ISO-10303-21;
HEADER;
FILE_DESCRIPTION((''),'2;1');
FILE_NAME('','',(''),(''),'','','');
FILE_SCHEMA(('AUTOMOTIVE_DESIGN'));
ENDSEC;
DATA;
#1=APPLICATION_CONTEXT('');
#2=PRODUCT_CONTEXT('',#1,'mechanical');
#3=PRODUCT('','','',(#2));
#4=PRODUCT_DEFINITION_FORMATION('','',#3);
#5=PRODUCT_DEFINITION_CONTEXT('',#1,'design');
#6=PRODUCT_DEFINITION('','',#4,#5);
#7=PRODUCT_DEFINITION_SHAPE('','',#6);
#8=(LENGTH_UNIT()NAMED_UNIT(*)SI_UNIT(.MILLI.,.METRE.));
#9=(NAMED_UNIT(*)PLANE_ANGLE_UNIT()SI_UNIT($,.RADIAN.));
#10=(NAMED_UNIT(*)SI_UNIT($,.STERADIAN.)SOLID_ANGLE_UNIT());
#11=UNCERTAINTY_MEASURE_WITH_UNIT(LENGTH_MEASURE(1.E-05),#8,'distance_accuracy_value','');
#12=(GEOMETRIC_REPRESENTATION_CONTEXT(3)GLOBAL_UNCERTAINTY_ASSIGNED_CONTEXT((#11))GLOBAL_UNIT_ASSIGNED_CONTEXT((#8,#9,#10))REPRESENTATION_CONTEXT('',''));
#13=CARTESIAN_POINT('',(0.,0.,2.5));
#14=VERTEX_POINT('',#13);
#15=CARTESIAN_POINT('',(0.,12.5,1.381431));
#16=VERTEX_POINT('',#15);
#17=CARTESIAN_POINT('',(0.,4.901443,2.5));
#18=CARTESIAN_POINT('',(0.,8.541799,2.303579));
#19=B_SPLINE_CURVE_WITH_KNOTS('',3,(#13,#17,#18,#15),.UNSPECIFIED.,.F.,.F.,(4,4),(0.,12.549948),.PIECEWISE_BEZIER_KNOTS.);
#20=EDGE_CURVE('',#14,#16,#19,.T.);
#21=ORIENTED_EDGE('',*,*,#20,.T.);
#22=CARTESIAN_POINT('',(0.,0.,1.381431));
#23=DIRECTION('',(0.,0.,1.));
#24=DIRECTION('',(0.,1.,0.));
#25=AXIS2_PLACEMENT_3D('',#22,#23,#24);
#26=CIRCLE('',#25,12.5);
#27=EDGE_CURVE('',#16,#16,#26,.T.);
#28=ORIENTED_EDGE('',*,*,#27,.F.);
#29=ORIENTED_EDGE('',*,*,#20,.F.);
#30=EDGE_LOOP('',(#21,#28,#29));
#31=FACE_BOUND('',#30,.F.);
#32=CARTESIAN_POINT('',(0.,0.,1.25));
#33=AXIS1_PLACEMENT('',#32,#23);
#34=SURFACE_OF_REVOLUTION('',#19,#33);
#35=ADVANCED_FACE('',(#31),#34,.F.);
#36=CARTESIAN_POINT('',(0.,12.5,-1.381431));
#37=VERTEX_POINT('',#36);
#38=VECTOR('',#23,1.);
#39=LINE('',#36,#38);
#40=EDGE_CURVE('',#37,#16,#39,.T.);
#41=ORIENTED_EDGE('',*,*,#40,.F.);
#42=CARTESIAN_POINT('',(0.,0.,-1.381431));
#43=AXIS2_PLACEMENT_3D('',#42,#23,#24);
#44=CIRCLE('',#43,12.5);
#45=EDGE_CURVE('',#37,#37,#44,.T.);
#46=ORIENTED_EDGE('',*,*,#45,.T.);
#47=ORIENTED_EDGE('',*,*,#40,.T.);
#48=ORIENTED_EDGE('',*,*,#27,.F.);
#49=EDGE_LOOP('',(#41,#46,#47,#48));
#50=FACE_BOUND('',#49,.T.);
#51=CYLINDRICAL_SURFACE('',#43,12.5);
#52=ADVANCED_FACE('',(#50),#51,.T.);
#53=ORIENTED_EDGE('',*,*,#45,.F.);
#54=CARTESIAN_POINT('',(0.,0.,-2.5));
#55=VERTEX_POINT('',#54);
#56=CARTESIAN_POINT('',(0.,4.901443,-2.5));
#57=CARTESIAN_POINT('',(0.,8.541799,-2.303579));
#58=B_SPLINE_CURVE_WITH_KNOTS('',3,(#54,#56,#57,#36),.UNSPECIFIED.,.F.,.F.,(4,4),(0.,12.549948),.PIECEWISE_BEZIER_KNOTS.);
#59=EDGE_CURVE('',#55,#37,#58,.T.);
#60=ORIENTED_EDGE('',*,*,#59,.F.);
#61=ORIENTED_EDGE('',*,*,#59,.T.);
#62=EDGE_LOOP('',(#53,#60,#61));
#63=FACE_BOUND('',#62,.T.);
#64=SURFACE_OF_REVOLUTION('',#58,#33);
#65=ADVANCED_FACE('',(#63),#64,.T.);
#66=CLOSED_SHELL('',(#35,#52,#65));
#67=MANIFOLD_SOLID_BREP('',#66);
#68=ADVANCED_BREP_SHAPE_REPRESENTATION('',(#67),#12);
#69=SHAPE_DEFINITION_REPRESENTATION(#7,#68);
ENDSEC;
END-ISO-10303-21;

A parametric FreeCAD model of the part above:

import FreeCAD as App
import Part
import Sketcher

V = App.Vector

doc = App.newDocument("Part")
body = doc.addObject("PartDesign::Body", "Body")

sketch1 = body.newObject("Sketcher::SketchObject", "Sketch")
sketch1.AttachmentSupport = (doc.getObject("YZ_Plane"), [""])
sketch1.MapMode = "FlatFace"
sketch1.addGeometry(Part.LineSegment(V(0, 2.5, 0), V(0, -2.5, 0)), False)
sketch1.addGeometry(Part.BSplineCurve([V(0, -2.5, 0), V(4.901443, -2.5, 0), V(8.541799, -2.303579, 0), V(12.5, -1.381431, 0)], [4, 4], [0, 12.549948], False, 3, [1, 1, 1, 1], False), False)
sketch1.addGeometry(Part.LineSegment(V(12.5, -1.381431, 0), V(12.5, 1.381431, 0)), False)
sketch1.addGeometry(Part.BSplineCurve([V(0, 2.5, 0), V(4.901443, 2.5, 0), V(8.541799, 2.303579, 0), V(12.5, 1.381431, 0)], [4, 4], [0, 12.549948], False, 3, [1, 1, 1, 1], False), False)
sketch1.addConstraint(Sketcher.Constraint("Block", 1))
sketch1.addConstraint(Sketcher.Constraint("Block", 3))
sketch1.addConstraint(Sketcher.Constraint("Coincident", 0, 2, 1, 1))
sketch1.addConstraint(Sketcher.Constraint("Coincident", 1, 2, 2, 1))
sketch1.addConstraint(Sketcher.Constraint("Coincident", 2, 2, 3, 2))
sketch1.addConstraint(Sketcher.Constraint("Coincident", 3, 1, 0, 1))
revolution = body.newObject("PartDesign::Revolution", "Revolution")
revolution.Profile = sketch1
revolution.ReferenceAxis = (sketch1, ["V_Axis"])
revolution.Angle = 360

doc.recompute()
